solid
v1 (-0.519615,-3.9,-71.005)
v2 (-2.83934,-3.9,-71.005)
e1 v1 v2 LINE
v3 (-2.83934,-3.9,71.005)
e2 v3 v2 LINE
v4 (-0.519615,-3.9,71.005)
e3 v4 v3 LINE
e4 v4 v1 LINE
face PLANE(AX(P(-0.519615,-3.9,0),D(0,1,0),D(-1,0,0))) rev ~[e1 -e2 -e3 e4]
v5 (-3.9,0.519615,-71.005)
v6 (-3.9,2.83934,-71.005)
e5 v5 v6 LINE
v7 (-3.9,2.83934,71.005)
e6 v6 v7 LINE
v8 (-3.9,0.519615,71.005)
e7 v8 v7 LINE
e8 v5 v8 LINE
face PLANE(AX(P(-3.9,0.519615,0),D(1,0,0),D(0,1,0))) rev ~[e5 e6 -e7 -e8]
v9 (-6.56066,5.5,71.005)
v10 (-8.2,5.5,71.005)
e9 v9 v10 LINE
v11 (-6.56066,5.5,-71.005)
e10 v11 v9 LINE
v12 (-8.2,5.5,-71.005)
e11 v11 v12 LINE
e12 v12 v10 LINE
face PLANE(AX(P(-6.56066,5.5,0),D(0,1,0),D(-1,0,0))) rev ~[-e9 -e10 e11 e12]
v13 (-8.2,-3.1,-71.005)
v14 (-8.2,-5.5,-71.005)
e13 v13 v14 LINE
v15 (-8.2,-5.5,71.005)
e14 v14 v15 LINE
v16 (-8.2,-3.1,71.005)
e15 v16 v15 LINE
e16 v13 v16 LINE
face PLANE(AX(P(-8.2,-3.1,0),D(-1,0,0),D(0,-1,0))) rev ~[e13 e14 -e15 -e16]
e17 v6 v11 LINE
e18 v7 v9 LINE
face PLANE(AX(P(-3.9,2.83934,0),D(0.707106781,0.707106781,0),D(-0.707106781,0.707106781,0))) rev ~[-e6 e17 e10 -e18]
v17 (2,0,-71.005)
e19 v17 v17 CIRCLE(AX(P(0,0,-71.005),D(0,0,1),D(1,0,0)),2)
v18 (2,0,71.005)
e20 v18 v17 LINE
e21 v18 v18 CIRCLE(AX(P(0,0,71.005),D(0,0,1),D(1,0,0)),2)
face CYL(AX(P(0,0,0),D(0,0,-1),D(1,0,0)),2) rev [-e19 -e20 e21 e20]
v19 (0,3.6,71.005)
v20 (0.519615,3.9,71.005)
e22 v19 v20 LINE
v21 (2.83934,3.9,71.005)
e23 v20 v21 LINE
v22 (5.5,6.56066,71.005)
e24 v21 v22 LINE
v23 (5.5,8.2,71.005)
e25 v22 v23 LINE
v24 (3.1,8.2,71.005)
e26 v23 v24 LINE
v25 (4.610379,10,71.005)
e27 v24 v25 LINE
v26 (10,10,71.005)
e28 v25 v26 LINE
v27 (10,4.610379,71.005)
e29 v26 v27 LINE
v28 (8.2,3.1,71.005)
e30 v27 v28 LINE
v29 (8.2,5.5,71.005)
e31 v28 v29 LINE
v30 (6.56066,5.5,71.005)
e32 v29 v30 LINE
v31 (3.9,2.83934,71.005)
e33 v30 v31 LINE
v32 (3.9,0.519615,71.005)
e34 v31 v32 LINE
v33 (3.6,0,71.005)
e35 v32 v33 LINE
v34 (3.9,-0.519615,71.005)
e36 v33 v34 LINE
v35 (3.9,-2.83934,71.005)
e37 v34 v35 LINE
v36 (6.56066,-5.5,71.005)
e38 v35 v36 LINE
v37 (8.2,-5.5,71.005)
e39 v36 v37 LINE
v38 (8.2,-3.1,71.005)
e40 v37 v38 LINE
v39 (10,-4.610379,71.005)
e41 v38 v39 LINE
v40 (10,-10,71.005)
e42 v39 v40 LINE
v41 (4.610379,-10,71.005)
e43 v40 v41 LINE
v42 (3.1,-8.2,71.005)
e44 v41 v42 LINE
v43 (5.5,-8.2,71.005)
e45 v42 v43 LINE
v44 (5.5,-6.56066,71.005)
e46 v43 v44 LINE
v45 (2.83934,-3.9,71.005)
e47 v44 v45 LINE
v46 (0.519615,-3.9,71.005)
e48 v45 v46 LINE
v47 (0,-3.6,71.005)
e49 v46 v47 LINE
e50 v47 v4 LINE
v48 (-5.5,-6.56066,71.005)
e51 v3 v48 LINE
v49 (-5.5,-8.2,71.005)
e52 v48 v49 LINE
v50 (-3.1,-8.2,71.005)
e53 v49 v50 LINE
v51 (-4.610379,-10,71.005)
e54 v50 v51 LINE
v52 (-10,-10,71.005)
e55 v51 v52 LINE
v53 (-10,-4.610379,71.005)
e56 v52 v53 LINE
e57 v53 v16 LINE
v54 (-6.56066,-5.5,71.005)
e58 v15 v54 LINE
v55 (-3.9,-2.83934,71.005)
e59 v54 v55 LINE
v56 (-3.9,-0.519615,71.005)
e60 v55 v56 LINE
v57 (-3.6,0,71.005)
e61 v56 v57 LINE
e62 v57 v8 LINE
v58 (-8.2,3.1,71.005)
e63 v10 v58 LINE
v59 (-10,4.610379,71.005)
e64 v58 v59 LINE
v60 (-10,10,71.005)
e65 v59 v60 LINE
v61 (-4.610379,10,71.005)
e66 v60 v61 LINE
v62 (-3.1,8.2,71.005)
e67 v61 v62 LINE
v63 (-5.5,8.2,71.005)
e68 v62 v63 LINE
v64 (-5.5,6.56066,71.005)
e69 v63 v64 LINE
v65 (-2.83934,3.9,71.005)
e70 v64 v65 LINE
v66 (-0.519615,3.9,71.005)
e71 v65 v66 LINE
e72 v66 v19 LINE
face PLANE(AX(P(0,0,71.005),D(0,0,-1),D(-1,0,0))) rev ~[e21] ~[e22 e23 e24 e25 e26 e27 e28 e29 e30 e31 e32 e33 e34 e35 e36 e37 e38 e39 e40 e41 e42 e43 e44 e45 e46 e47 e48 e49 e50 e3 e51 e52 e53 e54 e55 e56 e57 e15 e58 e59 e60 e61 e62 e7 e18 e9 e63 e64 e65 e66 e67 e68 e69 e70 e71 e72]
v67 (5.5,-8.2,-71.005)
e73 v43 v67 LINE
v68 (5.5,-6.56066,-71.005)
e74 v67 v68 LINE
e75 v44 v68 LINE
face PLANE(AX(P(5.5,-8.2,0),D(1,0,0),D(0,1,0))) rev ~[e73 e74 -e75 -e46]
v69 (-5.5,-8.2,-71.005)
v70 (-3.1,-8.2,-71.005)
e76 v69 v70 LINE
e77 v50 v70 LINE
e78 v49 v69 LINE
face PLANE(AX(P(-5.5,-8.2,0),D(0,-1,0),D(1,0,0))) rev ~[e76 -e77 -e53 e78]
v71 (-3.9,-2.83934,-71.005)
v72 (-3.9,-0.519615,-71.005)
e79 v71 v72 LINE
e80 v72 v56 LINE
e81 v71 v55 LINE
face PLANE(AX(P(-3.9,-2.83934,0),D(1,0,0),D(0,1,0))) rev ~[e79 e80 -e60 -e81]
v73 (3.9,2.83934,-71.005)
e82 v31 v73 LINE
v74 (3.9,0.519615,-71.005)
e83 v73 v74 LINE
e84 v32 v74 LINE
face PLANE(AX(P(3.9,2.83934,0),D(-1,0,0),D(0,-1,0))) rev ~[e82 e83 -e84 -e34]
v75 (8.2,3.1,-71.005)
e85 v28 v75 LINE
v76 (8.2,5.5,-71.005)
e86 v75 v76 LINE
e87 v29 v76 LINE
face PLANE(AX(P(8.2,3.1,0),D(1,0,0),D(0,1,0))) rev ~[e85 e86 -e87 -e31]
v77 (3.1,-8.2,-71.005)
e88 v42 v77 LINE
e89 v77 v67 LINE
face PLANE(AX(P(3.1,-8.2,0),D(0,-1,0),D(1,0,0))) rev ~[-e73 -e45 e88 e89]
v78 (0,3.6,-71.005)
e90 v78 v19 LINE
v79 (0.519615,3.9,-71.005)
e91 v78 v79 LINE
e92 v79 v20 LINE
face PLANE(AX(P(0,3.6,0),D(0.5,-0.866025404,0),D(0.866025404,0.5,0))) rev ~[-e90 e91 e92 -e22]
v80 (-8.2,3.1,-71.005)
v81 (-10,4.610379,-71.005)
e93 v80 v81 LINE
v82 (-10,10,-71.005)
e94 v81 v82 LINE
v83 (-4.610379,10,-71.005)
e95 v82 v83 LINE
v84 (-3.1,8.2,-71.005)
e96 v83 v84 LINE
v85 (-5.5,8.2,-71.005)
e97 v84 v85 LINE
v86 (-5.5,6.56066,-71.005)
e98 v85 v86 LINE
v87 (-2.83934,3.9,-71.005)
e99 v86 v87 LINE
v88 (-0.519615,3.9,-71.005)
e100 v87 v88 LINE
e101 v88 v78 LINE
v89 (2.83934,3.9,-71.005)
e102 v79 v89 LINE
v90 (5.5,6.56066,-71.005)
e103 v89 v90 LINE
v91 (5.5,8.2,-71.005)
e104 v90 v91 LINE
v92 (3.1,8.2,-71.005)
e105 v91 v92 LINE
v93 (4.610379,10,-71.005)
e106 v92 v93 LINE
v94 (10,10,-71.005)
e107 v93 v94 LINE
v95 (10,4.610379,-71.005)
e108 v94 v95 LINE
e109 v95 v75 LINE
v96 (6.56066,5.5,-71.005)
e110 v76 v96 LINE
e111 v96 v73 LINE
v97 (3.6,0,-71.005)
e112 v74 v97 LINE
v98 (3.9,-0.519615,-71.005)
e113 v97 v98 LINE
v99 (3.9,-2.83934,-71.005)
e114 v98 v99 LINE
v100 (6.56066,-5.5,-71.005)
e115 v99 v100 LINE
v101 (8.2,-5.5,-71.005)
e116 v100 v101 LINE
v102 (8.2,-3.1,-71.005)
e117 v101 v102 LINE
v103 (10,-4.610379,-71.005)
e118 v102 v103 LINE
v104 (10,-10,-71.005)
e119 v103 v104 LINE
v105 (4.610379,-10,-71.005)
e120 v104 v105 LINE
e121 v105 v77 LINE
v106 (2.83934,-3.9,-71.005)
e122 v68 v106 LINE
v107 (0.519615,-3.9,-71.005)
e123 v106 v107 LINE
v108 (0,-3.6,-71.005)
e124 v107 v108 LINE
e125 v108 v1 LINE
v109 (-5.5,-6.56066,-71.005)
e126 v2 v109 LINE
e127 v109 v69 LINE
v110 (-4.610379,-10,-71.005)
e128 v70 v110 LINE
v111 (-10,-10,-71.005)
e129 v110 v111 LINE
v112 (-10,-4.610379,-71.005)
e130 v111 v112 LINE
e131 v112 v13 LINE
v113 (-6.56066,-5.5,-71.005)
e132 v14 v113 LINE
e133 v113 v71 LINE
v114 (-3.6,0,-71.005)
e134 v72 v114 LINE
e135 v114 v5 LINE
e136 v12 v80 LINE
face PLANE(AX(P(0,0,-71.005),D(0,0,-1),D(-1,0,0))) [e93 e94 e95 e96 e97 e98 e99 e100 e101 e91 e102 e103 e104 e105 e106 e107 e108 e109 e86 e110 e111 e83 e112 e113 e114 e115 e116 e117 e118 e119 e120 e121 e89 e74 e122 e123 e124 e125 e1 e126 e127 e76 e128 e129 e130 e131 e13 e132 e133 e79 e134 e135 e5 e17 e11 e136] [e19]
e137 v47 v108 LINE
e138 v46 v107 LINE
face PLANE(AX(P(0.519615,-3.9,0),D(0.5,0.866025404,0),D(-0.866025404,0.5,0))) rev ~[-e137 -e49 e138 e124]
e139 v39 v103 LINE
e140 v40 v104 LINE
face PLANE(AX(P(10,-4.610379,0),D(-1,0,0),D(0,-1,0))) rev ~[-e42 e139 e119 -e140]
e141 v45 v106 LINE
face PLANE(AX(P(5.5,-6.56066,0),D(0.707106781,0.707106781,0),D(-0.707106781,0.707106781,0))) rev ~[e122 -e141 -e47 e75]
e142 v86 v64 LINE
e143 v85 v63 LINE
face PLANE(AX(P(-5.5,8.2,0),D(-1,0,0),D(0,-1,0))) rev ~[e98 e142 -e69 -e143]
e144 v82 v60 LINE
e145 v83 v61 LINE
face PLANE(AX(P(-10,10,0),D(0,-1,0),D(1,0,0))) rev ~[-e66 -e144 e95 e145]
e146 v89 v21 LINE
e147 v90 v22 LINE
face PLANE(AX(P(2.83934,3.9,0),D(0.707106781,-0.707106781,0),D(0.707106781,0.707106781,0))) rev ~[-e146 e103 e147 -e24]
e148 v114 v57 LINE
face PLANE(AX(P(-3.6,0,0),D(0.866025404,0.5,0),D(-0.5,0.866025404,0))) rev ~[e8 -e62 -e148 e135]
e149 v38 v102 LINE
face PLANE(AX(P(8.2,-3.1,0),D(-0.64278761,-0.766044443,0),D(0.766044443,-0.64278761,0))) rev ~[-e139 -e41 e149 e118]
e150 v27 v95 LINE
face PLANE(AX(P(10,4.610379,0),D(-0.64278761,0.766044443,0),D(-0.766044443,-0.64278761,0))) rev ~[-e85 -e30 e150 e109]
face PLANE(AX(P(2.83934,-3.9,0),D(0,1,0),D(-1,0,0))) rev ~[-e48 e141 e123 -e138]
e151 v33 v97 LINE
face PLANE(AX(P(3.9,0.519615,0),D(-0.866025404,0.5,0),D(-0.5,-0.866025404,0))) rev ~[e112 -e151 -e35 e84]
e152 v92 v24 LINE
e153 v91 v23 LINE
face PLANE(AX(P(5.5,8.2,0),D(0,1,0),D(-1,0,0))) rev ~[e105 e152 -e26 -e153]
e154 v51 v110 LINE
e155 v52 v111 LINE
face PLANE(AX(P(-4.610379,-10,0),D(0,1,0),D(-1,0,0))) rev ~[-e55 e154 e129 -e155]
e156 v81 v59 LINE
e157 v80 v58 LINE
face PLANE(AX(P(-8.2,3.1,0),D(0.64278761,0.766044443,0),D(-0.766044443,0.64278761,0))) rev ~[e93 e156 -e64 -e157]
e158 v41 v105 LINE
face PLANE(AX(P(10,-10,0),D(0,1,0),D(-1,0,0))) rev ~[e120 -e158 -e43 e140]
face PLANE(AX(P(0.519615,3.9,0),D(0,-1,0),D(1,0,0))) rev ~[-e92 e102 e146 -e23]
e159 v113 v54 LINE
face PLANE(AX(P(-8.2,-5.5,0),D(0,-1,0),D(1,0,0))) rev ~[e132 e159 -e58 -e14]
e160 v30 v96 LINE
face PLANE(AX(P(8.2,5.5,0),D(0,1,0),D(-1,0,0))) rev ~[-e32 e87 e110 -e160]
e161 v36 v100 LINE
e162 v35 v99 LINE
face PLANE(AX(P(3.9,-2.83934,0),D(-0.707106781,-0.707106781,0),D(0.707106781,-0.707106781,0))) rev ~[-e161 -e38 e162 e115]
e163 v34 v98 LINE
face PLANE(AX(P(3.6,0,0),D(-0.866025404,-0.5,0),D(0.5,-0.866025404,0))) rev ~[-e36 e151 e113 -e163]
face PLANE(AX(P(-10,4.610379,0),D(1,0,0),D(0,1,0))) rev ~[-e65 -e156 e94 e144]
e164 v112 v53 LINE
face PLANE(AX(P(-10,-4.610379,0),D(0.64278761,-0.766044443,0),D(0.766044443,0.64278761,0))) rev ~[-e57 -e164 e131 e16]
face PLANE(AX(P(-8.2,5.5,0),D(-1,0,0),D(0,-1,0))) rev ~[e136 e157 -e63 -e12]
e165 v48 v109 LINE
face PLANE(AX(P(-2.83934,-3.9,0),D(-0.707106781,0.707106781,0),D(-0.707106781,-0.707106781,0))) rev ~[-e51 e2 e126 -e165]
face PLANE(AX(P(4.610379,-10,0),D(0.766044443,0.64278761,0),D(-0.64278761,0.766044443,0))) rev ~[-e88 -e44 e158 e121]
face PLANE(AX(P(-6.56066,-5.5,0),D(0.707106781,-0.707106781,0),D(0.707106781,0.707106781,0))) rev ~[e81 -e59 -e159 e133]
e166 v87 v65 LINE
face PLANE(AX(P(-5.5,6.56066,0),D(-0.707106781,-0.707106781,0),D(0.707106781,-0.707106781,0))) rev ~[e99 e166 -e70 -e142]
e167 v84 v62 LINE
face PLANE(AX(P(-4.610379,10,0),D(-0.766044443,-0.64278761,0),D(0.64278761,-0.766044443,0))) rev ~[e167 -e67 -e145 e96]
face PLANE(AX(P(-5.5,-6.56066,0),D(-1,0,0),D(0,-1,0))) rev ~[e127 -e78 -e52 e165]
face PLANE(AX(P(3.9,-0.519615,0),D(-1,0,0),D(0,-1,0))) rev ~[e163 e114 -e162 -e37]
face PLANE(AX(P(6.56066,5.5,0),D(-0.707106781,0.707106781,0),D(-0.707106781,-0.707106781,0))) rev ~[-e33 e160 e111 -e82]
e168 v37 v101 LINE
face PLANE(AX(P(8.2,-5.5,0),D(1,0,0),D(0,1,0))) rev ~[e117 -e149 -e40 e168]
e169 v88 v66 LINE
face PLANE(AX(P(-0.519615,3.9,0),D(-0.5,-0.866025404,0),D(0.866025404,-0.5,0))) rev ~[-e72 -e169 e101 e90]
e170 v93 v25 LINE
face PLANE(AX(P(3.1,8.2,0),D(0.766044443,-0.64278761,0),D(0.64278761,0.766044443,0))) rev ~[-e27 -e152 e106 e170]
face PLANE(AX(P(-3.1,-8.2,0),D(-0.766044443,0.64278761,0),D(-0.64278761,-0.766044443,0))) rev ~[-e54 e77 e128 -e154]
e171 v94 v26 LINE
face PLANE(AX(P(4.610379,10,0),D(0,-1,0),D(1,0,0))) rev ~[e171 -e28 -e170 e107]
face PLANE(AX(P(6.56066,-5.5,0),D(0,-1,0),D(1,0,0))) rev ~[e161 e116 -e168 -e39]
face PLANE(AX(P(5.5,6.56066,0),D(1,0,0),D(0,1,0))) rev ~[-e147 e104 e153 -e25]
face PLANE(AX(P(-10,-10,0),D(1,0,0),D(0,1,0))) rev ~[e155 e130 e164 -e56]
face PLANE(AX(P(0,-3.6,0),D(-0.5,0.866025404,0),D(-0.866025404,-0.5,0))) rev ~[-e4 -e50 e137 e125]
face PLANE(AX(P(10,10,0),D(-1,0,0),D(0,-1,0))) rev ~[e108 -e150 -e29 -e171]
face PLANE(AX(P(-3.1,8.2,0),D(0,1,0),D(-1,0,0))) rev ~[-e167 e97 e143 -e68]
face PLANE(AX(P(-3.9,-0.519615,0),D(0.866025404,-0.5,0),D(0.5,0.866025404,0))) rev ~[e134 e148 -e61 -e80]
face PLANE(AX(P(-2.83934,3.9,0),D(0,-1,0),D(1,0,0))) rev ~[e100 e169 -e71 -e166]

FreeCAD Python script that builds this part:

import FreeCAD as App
import Part
import Sketcher

V = App.Vector
Q = App.Units.Quantity


def add_polygon(sketch, points):
    """Adds a closed chain of lines whose ends are joined by coincident constraints."""
    first, n = sketch.GeometryCount, len(points)
    for a, b in zip(points, points[1:] + points[:1]):
        sketch.addGeometry(Part.LineSegment(App.Vector(*a, 0), App.Vector(*b, 0)), False)
    for i in range(n):
        sketch.addConstraint(Sketcher.Constraint("Coincident", first + i, 2, first + (i + 1) % n, 1))

doc = App.newDocument("Part")
body = doc.addObject("PartDesign::Body", "Body")

sketch1 = doc.addObject("Sketcher::SketchObject", "Sketch")
body.addObject(sketch1)
sketch1.AttachmentSupport = (doc.XY_Plane, [""])
sketch1.MapMode = "FlatFace"
add_polygon(sketch1, [(10, 4.6), (10, 10), (4.6, 10), (3.1, 8.2), (5.5, 8.2), (5.5, 6.6), (2.8, 3.9), (0.5, 3.9), (0, 3.6), (-0.5, 3.9), (-2.8, 3.9), (-5.5, 6.6), (-5.5, 8.2), (-3.1, 8.2), (-4.6, 10), (-10, 10), (-10, 4.6), (-8.2, 3.1), (-8.2, 5.5), (-6.6, 5.5), (-3.9, 2.8), (-3.9, 0.5), (-3.6, 0), (-3.9, -0.5), (-3.9, -2.8), (-6.6, -5.5), (-8.2, -5.5), (-8.2, -3.1), (-10, -4.6), (-10, -10), (-4.6, -10), (-3.1, -8.2), (-5.5, -8.2), (-5.5, -6.6), (-2.8, -3.9), (-0.5, -3.9), (0, -3.6), (0.5, -3.9), (2.8, -3.9), (5.5, -6.6), (5.5, -8.2), (3.1, -8.2), (4.6, -10), (10, -10), (10, -4.6), (8.2, -3.1), (8.2, -5.5), (6.6, -5.5), (3.9, -2.8), (3.9, -0.5), (3.6, 0), (3.9, 0.5), (3.9, 2.8), (6.6, 5.5), (8.2, 5.5), (8.2, 3.1)])
sketch1.addGeometry(Part.Circle(V(0, 0, 0), V(0, 0, 1), 2), False)
sketch1.addConstraint(Sketcher.Constraint("Vertical", 0))
sketch1.addConstraint(Sketcher.Constraint("Horizontal", 1))
sketch1.addConstraint(Sketcher.Constraint("Horizontal", 3))
sketch1.addConstraint(Sketcher.Constraint("Vertical", 4))
sketch1.addConstraint(Sketcher.Constraint("Horizontal", 6))
sketch1.addConstraint(Sketcher.Constraint("Horizontal", 9))
sketch1.addConstraint(Sketcher.Constraint("Vertical", 11))
sketch1.addConstraint(Sketcher.Constraint("Horizontal", 12))
sketch1.addConstraint(Sketcher.Constraint("Horizontal", 14))
sketch1.addConstraint(Sketcher.Constraint("Vertical", 15))
sketch1.addConstraint(Sketcher.Constraint("Vertical", 17))
sketch1.addConstraint(Sketcher.Constraint("Horizontal", 18))
sketch1.addConstraint(Sketcher.Constraint("Vertical", 20))
sketch1.addConstraint(Sketcher.Constraint("Vertical", 23))
sketch1.addConstraint(Sketcher.Constraint("Horizontal", 25))
sketch1.addConstraint(Sketcher.Constraint("Vertical", 26))
sketch1.addConstraint(Sketcher.Constraint("Vertical", 28))
sketch1.addConstraint(Sketcher.Constraint("Horizontal", 29))
sketch1.addConstraint(Sketcher.Constraint("Horizontal", 31))
sketch1.addConstraint(Sketcher.Constraint("Vertical", 32))
sketch1.addConstraint(Sketcher.Constraint("Horizontal", 34))
sketch1.addConstraint(Sketcher.Constraint("Horizontal", 37))
sketch1.addConstraint(Sketcher.Constraint("Vertical", 39))
sketch1.addConstraint(Sketcher.Constraint("Horizontal", 40))
sketch1.addConstraint(Sketcher.Constraint("Horizontal", 42))
sketch1.addConstraint(Sketcher.Constraint("Vertical", 43))
sketch1.addConstraint(Sketcher.Constraint("Vertical", 45))
sketch1.addConstraint(Sketcher.Constraint("Horizontal", 46))
sketch1.addConstraint(Sketcher.Constraint("Vertical", 48))
sketch1.addConstraint(Sketcher.Constraint("Vertical", 51))
sketch1.addConstraint(Sketcher.Constraint("Horizontal", 53))
sketch1.addConstraint(Sketcher.Constraint("Vertical", 54))
sketch1.addConstraint(Sketcher.Constraint("Coincident", 56, 3, -1, 1))
sketch1.addConstraint(Sketcher.Constraint("Symmetric", 0, 2, 28, 2, -1, 1))
sketch1.addConstraint(Sketcher.Constraint("Symmetric", 2, 2, 30, 2, -1, 1))
sketch1.addConstraint(Sketcher.Constraint("Symmetric", 4, 2, 32, 2, -1, 1))
sketch1.addConstraint(Sketcher.Constraint("Symmetric", 5, 2, 33, 2, -1, 1))
sketch1.addConstraint(Sketcher.Constraint("Symmetric", 7, 2, 35, 2, -1, 1))
sketch1.addConstraint(Sketcher.Constraint("Symmetric", 8, 2, 36, 2, -1, 1))
sketch1.addConstraint(Sketcher.Constraint("Symmetric", 10, 2, 38, 2, -1, 1))
sketch1.addConstraint(Sketcher.Constraint("Symmetric", 12, 2, 40, 2, -1, 1))
sketch1.addConstraint(Sketcher.Constraint("Symmetric", 13, 2, 41, 2, -1, 1))
sketch1.addConstraint(Sketcher.Constraint("Symmetric", 15, 2, 43, 2, -1, 1))
sketch1.addConstraint(Sketcher.Constraint("Symmetric", 16, 2, 44, 2, -1, 1))
sketch1.addConstraint(Sketcher.Constraint("Symmetric", 18, 2, 46, 2, -1, 1))
sketch1.addConstraint(Sketcher.Constraint("Symmetric", 19, 2, 47, 2, -1, 1))
sketch1.addConstraint(Sketcher.Constraint("Symmetric", 21, 2, 49, 2, -1, 1))
sketch1.addConstraint(Sketcher.Constraint("Symmetric", 22, 2, 50, 2, -1, 1))
sketch1.addConstraint(Sketcher.Constraint("Symmetric", 24, 2, 52, 2, -1, 1))
sketch1.addConstraint(Sketcher.Constraint("Symmetric", 26, 2, 54, 2, -1, 1))
sketch1.addConstraint(Sketcher.Constraint("Symmetric", 6, 2, 8, 2, -2))
sketch1.addConstraint(Sketcher.Constraint("Symmetric", 4, 2, 10, 2, -2))
sketch1.addConstraint(Sketcher.Constraint("Symmetric", 2, 2, 12, 2, -2))
sketch1.addConstraint(Sketcher.Constraint("Symmetric", 1, 2, 13, 2, -2))
sketch1.addConstraint(Sketcher.Constraint("Symmetric", 27, 2, 43, 2, -2))
sketch1.addConstraint(Sketcher.Constraint("Symmetric", 26, 2, 44, 2, -2))
sketch1.addConstraint(Sketcher.Constraint("Symmetric", 24, 2, 46, 2, -2))
sketch1.addConstraint(Sketcher.Constraint("Symmetric", 23, 2, 47, 2, -2))
sketch1.addConstraint(Sketcher.Constraint("PointOnObject", 7, 2, -2))
sketch1.addConstraint(Sketcher.Constraint("PointOnObject", 21, 2, -1))
sketch1.addConstraint(Sketcher.Constraint("Perpendicular", 5, 10))
sketch1.addConstraint(Sketcher.Constraint("Perpendicular", 2, 16))
sketch1.addConstraint(Sketcher.Constraint("Parallel", 10, 19))
sketch1.addConstraint(Sketcher.Constraint("Perpendicular", 7, 21))
sketch1.addConstraint(Sketcher.Constraint("Perpendicular", 8, 22))
sketch1.addConstraint(Sketcher.Constraint("Perpendicular", 19, 24))
sketch1.addConstraint(Sketcher.Constraint("Perpendicular", 16, 30))
sketch1.addConstraint(Sketcher.Constraint("Perpendicular", 21, 35))
sketch1.addConstraint(Sketcher.Constraint("Perpendicular", 33, 38))
sketch1.addConstraint(Sketcher.Constraint("Perpendicular", 35, 49))
sketch1.addConstraint(Sketcher.Constraint("Perpendicular", 47, 52))
sketch1.addConstraint(Sketcher.Constraint("Perpendicular", 41, 55))
sketch1.addConstraint(Sketcher.Constraint("Equal", 42, 0))
sketch1.addConstraint(Sketcher.Constraint("Equal", 53, 4))
sketch1.addConstraint(Sketcher.Constraint("Equal", 40, 17))
sketch1.addConstraint(Sketcher.Constraint("Equal", 37, 20))
sketch1.addConstraint(Sketcher.Constraint("Equal", 13, 16))
sketch1.addConstraint(Sketcher.Constraint("Equal", 10, 19))
sketch1.addConstraint(Sketcher.Constraint("Equal", 8, 21))
sketch1.addConstraint(Sketcher.Constraint("Diameter", 56, 4.0))
sketch1.addConstraint(Sketcher.Constraint("Angle", 2, Q("-130 deg")))
sketch1.addConstraint(Sketcher.Constraint("Angle", 7, Q("-150 deg")))
sketch1.addConstraint(Sketcher.Constraint("DistanceX", 3, 1, 3, 2, 2.4))
sketch1.addConstraint(Sketcher.Constraint("DistanceX", -1, 1, 0, 2, 10.0))
sketch1.addConstraint(Sketcher.Constraint("Distance", 7, 0.6))
sketch1.addConstraint(Sketcher.Constraint("DistanceX", -1, 1, 2, 2, 3.1))
sketch1.addConstraint(Sketcher.Constraint("DistanceY", -1, 1, 2, 2, 8.2))
sketch1.addConstraint(Sketcher.Constraint("DistanceY", -1, 1, 5, 2, 3.9))
sketch1.addConstraint(Sketcher.Constraint("DistanceX", 18, 1, 18, 2, 1.63934))
pad1 = doc.addObject("PartDesign::Pad", "Pad")
body.addObject(pad1)
pad1.Profile = sketch1
pad1.Length = 142.01
pad1.Midplane = True

doc.recompute()
